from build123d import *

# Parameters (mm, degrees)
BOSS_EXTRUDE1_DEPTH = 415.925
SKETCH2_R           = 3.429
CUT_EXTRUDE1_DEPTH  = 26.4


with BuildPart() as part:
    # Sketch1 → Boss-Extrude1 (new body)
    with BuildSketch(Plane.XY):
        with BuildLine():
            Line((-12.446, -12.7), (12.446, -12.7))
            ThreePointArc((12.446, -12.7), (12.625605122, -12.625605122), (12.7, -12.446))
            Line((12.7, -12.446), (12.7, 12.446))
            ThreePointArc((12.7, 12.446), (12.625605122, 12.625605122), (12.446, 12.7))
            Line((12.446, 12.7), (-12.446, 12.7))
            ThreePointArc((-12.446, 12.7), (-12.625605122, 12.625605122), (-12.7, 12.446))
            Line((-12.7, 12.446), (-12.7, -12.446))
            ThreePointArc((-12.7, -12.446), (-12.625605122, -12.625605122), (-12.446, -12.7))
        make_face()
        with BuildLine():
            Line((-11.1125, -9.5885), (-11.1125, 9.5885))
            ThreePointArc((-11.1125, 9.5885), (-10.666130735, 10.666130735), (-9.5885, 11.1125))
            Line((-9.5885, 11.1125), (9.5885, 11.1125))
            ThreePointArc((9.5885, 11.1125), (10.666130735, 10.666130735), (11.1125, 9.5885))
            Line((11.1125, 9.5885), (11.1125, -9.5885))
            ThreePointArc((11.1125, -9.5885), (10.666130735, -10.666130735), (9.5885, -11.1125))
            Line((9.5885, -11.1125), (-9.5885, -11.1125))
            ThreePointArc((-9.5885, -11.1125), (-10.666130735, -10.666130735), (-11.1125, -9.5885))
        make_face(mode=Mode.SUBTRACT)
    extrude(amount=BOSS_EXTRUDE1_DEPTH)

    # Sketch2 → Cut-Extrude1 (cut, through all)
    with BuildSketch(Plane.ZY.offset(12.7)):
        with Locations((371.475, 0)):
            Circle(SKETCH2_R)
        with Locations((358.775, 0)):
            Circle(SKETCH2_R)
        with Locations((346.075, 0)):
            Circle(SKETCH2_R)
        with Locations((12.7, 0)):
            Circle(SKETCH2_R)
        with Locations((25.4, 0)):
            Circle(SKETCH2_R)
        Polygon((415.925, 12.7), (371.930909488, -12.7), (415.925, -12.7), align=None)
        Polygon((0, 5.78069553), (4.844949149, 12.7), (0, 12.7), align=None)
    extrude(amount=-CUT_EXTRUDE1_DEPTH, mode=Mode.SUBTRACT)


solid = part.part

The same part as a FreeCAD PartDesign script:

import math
import FreeCAD as App
import Part
import Sketcher
Q = App.Units.Quantity


def add_polygon(sketch, points):
    """Adds a closed chain of lines whose ends are joined by coincident constraints."""
    first, n = sketch.GeometryCount, len(points)
    for a, b in zip(points, points[1:] + points[:1]):
        sketch.addGeometry(Part.LineSegment(App.Vector(*a, 0), App.Vector(*b, 0)), False)
    for i in range(n):
        sketch.addConstraint(Sketcher.Constraint("Coincident", first + i, 2, first + (i + 1) % n, 1))

doc = App.newDocument("Part")
params = doc.addObject("Spreadsheet::Sheet", "Params")
for row, (alias, value) in enumerate([
    ("sketch1_radius", "0.01 in"),
    ("sketch1_radius2", "0.06 in"),
    ("sketch1_width", "0.98 in"),
    ("sketch1_width2", "0.755 in"),
    ("pad1_length", "16.375 in"),
    ("sketch2_diameter", "0.27 in"),
    ("sketch2_width", "1 in"),
    ("sketch2_length", "2 in"),
], start=1):
    params.set(f"A{row}", alias)
    params.set(f"B{row}", "=" + value)
    params.setAlias(f"B{row}", alias)

body = doc.addObject("PartDesign::Body", "Body")

# Sketch on XY plane
sketch1 = doc.addObject("Sketcher::SketchObject", "Sketch")
body.addObject(sketch1)
sketch1.AttachmentSupport = (doc.XY_Plane, [""])
sketch1.MapMode = "FlatFace"
sketch1.addGeometry(Part.LineSegment(App.Vector(-12.45, -12.7, 0), App.Vector(12.45, -12.7, 0)), False)
sketch1.addGeometry(Part.ArcOfCircle(Part.Circle(App.Vector(12.45, -12.45, 0), App.Vector(0, 0, 1), 0.25), math.radians(-90), math.radians(0)), False)
sketch1.addGeometry(Part.LineSegment(App.Vector(12.7, -12.45, 0), App.Vector(12.7, 12.45, 0)), False)
sketch1.addGeometry(Part.ArcOfCircle(Part.Circle(App.Vector(12.45, 12.45, 0), App.Vector(0, 0, 1), 0.25), math.radians(0), math.radians(90)), False)
sketch1.addGeometry(Part.LineSegment(App.Vector(12.45, 12.7, 0), App.Vector(-12.45, 12.7, 0)), False)
sketch1.addGeometry(Part.ArcOfCircle(Part.Circle(App.Vector(-12.45, 12.45, 0), App.Vector(0, 0, 1), 0.25), math.radians(90), math.radians(180)), False)
sketch1.addGeometry(Part.LineSegment(App.Vector(-12.7, 12.45, 0), App.Vector(-12.7, -12.45, 0)), False)
sketch1.addGeometry(Part.ArcOfCircle(Part.Circle(App.Vector(-12.45, -12.45, 0), App.Vector(0, 0, 1), 0.25), math.radians(-180), math.radians(-90)), False)
sketch1.addGeometry(Part.ArcOfCircle(Part.Circle(App.Vector(-9.59, -9.59, 0), App.Vector(0, 0, 1), 1.52), math.radians(180), math.radians(270)), False)
sketch1.addGeometry(Part.LineSegment(App.Vector(-11.11, -9.59, 0), App.Vector(-11.11, 9.59, 0)), False)
sketch1.addGeometry(Part.ArcOfCircle(Part.Circle(App.Vector(-9.59, 9.59, 0), App.Vector(0, 0, 1), 1.52), math.radians(90), math.radians(180)), False)
sketch1.addGeometry(Part.LineSegment(App.Vector(-9.59, 11.11, 0), App.Vector(9.59, 11.11, 0)), False)
sketch1.addGeometry(Part.ArcOfCircle(Part.Circle(App.Vector(9.59, 9.59, 0), App.Vector(0, 0, 1), 1.52), math.radians(0), math.radians(90)), False)
sketch1.addGeometry(Part.LineSegment(App.Vector(11.11, 9.59, 0), App.Vector(11.11, -9.59, 0)), False)
sketch1.addGeometry(Part.ArcOfCircle(Part.Circle(App.Vector(9.59, -9.59, 0), App.Vector(0, 0, 1), 1.52), math.radians(-90), math.radians(0)), False)
sketch1.addGeometry(Part.LineSegment(App.Vector(9.59, -11.11, 0), App.Vector(-9.59, -11.11, 0)), False)
sketch1.addConstraint(Sketcher.Constraint("Tangent", 0, 2, 1, 1))
sketch1.addConstraint(Sketcher.Constraint("Tangent", 1, 2, 2, 1))
sketch1.addConstraint(Sketcher.Constraint("Tangent", 2, 2, 3, 1))
sketch1.addConstraint(Sketcher.Constraint("Tangent", 3, 2, 4, 1))
sketch1.addConstraint(Sketcher.Constraint("Tangent", 4, 2, 5, 1))
sketch1.addConstraint(Sketcher.Constraint("Tangent", 5, 2, 6, 1))
sketch1.addConstraint(Sketcher.Constraint("Tangent", 6, 2, 7, 1))
sketch1.addConstraint(Sketcher.Constraint("Tangent", 7, 2, 0, 1))
sketch1.addConstraint(Sketcher.Constraint("Tangent", 8, 1, 9, 1))
sketch1.addConstraint(Sketcher.Constraint("Tangent", 9, 2, 10, 2))
sketch1.addConstraint(Sketcher.Constraint("Tangent", 10, 1, 11, 1))
sketch1.addConstraint(Sketcher.Constraint("Tangent", 11, 2, 12, 2))
sketch1.addConstraint(Sketcher.Constraint("Tangent", 12, 1, 13, 1))
sketch1.addConstraint(Sketcher.Constraint("Tangent", 13, 2, 14, 2))
sketch1.addConstraint(Sketcher.Constraint("Tangent", 14, 1, 15, 1))
sketch1.addConstraint(Sketcher.Constraint("Tangent", 15, 2, 8, 2))
sketch1.addConstraint(Sketcher.Constraint("Horizontal", 0))
sketch1.addConstraint(Sketcher.Constraint("Vertical", 2))
sketch1.addConstraint(Sketcher.Constraint("Horizontal", 4))
sketch1.addConstraint(Sketcher.Constraint("Vertical", 6))
sketch1.addConstraint(Sketcher.Constraint("Vertical", 9))
sketch1.addConstraint(Sketcher.Constraint("Horizontal", 11))
sketch1.addConstraint(Sketcher.Constraint("Vertical", 13))
sketch1.addConstraint(Sketcher.Constraint("Horizontal", 15))
sketch1.addConstraint(Sketcher.Constraint("Equal", 1, 3))
sketch1.addConstraint(Sketcher.Constraint("Equal", 3, 5))
sketch1.addConstraint(Sketcher.Constraint("Equal", 5, 7))
sketch1.addConstraint(Sketcher.Constraint("Equal", 8, 10))
sketch1.addConstraint(Sketcher.Constraint("Equal", 10, 12))
sketch1.addConstraint(Sketcher.Constraint("Equal", 12, 14))
sketch1.addConstraint(Sketcher.Constraint("Symmetric", 1, 3, 5, 3, -1, 1))
sketch1.addConstraint(Sketcher.Constraint("Symmetric", 8, 3, 12, 3, -1, 1))
sketch1.addConstraint(Sketcher.Constraint("Equal", 4, 2))
sketch1.addConstraint(Sketcher.Constraint("Equal", 15, 9))
sketch1.addConstraint(Sketcher.Constraint("Radius", 1, Q("0.01 in")))
sketch1.addConstraint(Sketcher.Constraint("Radius", 8, Q("0.06 in")))
sketch1.addConstraint(Sketcher.Constraint("DistanceX", 0, 1, 0, 2, Q("0.98 in")))
sketch1.addConstraint(Sketcher.Constraint("DistanceX", 11, 1, 11, 2, Q("0.755 in")))
sketch1.setExpression("Constraints[34]", "Params.sketch1_radius")
sketch1.setExpression("Constraints[35]", "Params.sketch1_radius2")
sketch1.setExpression("Constraints[36]", "Params.sketch1_width")
sketch1.setExpression("Constraints[37]", "Params.sketch1_width2")
pad1 = doc.addObject("PartDesign::Pad", "Pad")
body.addObject(pad1)
pad1.Profile = sketch1
pad1.setExpression("Length", "Params.pad1_length")

# Sketch on YZ plane
sketch2 = doc.addObject("Sketcher::SketchObject", "Sketch001")
body.addObject(sketch2)
sketch2.AttachmentSupport = (doc.YZ_Plane, [""])
sketch2.MapMode = "FlatFace"
sketch2.AttachmentOffset = App.Placement(App.Vector(0, 0, -0.5 * 25.4), App.Rotation())
sketch2.addGeometry(Part.Circle(App.Vector(0, 371.5, 0), App.Vector(0, 0, 1), 3.4), False)  # 0
sketch2.addGeometry(Part.Circle(App.Vector(0, 358.8, 0), App.Vector(0, 0, 1), 3.4), False)  # 1
sketch2.addGeometry(Part.Circle(App.Vector(0, 346.1, 0), App.Vector(0, 0, 1), 3.4), False)  # 2
sketch2.addGeometry(Part.Circle(App.Vector(0, 12.7, 0), App.Vector(0, 0, 1), 3.4), False)  # 3
sketch2.addGeometry(Part.Circle(App.Vector(0, 25.4, 0), App.Vector(0, 0, 1), 3.4), False)  # 4
add_polygon(sketch2, [(12.7, 415.9), (-12.7, 371.9), (-12.7, 415.9)])  # lines 5-7
add_polygon(sketch2, [(5.8, 0), (12.7, 4.8), (12.7, 0)])  # lines 8-10
sketch2.addConstraint(Sketcher.Constraint("Vertical", 6))
sketch2.addConstraint(Sketcher.Constraint("Horizontal", 7))
sketch2.addConstraint(Sketcher.Constraint("Vertical", 9))
sketch2.addConstraint(Sketcher.Constraint("Horizontal", 10))
sketch2.addConstraint(Sketcher.Constraint("Equal", 0, 1))
sketch2.addConstraint(Sketcher.Constraint("Equal", 1, 2))
sketch2.addConstraint(Sketcher.Constraint("Equal", 2, 3))
sketch2.addConstraint(Sketcher.Constraint("Equal", 3, 4))
sketch2.addConstraint(Sketcher.Constraint("PointOnObject", 0, 3, -2))
sketch2.addConstraint(Sketcher.Constraint("PointOnObject", 1, 3, -2))
sketch2.addConstraint(Sketcher.Constraint("PointOnObject", 2, 3, -2))
sketch2.addConstraint(Sketcher.Constraint("PointOnObject", 3, 3, -2))
sketch2.addConstraint(Sketcher.Constraint("PointOnObject", 4, 3, -2))
sketch2.addConstraint(Sketcher.Constraint("PointOnObject", 9, 2, -1))
sketch2.addConstraint(Sketcher.Constraint("Vertical", 7, 2, 8, 2))
sketch2.addConstraint(Sketcher.Constraint("Diameter", 0, Q("0.27 in")))
sketch2.addConstraint(Sketcher.Constraint("DistanceX", 7, 1, 7, 2, Q("1 in")))
sketch2.addConstraint(Sketcher.Constraint("Distance", 5, Q("2 in")))
sketch2.addConstraint(Sketcher.Constraint("DistanceY", -1, 1, 4, 3, Q("1 in")))
sketch2.addConstraint(Sketcher.Constraint("Angle", 8, Q("35 deg")))
sketch2.addConstraint(Sketcher.Constraint("DistanceY", 2, 3, 0, 3, Q("1 in")))
sketch2.addConstraint(Sketcher.Constraint("DistanceY", -1, 1, 3, 3, Q("0.5 in")))
sketch2.addConstraint(Sketcher.Constraint("DistanceX", 5, 2, -1, 1, Q("0.5 in")))
sketch2.addConstraint(Sketcher.Constraint("DistanceY", 1, 3, 0, 3, Q("0.5 in")))
sketch2.addConstraint(Sketcher.Constraint("DistanceY", 0, 3, 6, 2, Q("1.75 in")))
sketch2.addConstraint(Sketcher.Constraint("DistanceY", -1, 1, 0, 3, Q("14.625 in")))
sketch2.addConstraint(Sketcher.Constraint("DistanceY", 9, 2, 9, 1, 4.844949))
sketch2.setExpression("Constraints[21]", "Params.sketch2_diameter")
sketch2.setExpression("Constraints[22]", "Params.sketch2_width")
sketch2.setExpression("Constraints[23]", "Params.sketch2_length")
pocket1 = doc.addObject("PartDesign::Pocket", "Pocket")
body.addObject(pocket1)
pocket1.Profile = sketch2
pocket1.Type = "ThroughAll"
pocket1.Reversed = True

doc.recompute()
